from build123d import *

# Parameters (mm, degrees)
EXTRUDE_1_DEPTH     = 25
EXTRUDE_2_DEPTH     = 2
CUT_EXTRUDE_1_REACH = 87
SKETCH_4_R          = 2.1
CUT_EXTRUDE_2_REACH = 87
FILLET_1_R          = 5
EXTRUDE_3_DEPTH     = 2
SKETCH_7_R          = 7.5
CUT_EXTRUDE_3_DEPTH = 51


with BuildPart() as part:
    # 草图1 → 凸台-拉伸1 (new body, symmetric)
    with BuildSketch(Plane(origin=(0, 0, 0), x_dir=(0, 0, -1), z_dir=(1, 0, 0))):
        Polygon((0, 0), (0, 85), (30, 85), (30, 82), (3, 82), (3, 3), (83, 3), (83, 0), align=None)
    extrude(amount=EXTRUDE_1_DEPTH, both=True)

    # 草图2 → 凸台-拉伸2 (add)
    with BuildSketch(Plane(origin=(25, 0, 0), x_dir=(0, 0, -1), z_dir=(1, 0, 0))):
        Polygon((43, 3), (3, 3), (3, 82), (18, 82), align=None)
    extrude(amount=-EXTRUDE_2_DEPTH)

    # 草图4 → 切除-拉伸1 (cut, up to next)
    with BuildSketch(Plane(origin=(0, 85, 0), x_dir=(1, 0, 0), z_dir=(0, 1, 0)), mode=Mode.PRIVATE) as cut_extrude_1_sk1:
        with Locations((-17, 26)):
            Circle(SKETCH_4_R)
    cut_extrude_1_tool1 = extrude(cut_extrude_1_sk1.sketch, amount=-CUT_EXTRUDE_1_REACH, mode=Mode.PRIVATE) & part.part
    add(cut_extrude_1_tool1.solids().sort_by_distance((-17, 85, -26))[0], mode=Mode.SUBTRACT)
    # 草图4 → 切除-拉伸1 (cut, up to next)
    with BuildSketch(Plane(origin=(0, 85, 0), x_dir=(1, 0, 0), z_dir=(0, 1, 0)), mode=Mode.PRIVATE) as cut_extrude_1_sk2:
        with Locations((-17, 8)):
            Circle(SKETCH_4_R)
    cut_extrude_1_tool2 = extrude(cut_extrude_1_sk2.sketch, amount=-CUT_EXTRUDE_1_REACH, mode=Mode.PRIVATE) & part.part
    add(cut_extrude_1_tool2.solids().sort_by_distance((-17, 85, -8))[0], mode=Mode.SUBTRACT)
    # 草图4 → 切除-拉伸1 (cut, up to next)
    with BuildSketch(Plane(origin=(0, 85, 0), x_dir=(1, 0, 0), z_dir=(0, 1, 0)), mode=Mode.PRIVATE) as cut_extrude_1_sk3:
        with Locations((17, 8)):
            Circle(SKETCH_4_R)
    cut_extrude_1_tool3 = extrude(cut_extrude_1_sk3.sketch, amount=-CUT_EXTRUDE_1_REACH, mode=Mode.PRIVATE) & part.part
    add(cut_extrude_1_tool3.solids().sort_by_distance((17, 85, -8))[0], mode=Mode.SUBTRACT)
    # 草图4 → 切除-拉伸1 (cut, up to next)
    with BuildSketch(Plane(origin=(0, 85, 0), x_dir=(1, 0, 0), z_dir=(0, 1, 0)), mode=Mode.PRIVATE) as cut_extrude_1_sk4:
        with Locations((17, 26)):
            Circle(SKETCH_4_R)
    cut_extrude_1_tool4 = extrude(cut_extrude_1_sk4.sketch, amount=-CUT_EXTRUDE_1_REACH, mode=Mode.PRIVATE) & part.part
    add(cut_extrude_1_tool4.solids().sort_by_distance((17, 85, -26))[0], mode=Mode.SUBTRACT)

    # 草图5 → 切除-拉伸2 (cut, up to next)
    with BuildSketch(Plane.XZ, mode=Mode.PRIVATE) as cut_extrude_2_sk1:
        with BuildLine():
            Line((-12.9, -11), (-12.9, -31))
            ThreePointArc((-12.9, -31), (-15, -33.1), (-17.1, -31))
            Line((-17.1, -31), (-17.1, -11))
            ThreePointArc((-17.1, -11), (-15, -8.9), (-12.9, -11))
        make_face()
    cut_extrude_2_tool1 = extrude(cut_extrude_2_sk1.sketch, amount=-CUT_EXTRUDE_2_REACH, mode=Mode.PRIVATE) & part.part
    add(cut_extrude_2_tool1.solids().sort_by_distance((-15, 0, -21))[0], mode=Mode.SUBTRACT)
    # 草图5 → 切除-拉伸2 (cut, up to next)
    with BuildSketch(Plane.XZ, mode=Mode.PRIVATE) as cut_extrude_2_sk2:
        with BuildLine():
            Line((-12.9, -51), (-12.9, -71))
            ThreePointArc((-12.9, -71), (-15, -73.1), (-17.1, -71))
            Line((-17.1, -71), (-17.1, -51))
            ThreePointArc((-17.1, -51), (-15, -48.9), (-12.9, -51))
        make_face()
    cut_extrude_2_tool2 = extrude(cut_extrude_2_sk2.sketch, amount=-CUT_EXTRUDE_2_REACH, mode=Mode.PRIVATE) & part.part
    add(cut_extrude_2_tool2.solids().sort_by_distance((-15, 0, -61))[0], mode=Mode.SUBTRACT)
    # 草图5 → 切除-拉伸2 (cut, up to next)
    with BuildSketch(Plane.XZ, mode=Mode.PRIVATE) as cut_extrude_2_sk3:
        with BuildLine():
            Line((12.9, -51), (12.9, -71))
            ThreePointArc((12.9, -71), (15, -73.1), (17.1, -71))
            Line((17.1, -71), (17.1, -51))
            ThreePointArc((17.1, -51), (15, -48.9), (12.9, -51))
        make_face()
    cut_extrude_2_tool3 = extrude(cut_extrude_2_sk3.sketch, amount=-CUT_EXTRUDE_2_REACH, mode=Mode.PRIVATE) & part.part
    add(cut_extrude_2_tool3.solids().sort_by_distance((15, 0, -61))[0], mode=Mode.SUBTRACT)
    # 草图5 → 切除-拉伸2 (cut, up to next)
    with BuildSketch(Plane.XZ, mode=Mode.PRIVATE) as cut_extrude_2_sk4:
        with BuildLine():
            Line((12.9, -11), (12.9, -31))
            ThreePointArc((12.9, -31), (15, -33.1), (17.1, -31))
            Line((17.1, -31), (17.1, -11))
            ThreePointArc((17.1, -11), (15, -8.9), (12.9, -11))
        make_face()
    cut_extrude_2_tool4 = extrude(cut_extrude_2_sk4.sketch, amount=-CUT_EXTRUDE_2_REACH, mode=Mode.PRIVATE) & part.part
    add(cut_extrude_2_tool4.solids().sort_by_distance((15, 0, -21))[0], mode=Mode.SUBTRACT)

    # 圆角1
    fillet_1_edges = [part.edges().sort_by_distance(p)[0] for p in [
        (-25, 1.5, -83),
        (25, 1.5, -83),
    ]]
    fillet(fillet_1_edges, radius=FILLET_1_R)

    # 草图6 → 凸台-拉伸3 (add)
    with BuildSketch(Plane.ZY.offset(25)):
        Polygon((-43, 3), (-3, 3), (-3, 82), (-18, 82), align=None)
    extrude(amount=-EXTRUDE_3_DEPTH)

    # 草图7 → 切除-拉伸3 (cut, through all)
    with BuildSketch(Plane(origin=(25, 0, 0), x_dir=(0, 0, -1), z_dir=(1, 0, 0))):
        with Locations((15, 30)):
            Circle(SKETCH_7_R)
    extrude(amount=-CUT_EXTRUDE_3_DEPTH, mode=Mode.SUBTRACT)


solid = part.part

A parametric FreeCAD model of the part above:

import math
import FreeCAD as App
import Part
import Sketcher
from FreeCAD import Vector
Q = App.Units.Quantity


def edges_at(feature, points):
    """Names of the edges that pass closest to the given points."""
    edges = feature.Shape.Edges
    near = lambda p: min(range(len(edges)), key=lambda i: edges[i].distToShape(Part.Vertex(*p))[0])
    return sorted({f"Edge{near(p) + 1}" for p in points})


def add_polygon(sketch, points):
    """Adds a closed chain of lines whose ends are joined by coincident constraints."""
    first, n = sketch.GeometryCount, len(points)
    for a, b in zip(points, points[1:] + points[:1]):
        sketch.addGeometry(Part.LineSegment(App.Vector(*a, 0), App.Vector(*b, 0)), False)
    for i in range(n):
        sketch.addConstraint(Sketcher.Constraint("Coincident", first + i, 2, first + (i + 1) % n, 1))

doc = App.newDocument("Part")
body = doc.addObject("PartDesign::Body", "Body")

# Sketch on YZ plane
sketch1 = body.newObject("Sketcher::SketchObject", "Sketch")
sketch1.AttachmentSupport = (doc.getObject("YZ_Plane"), [""])
sketch1.MapMode = "FlatFace"
add_polygon(sketch1, [(85, 0), (0, 0), (0, -83), (3, -83), (3, -3), (82, -3), (82, -30), (85, -30)])  # lines 0-7
sketch1.addConstraint([
    Sketcher.Constraint("Horizontal", 0),
    Sketcher.Constraint("Vertical", 1),
    Sketcher.Constraint("Horizontal", 2),
    Sketcher.Constraint("Vertical", 3),
    Sketcher.Constraint("Horizontal", 4),
    Sketcher.Constraint("Vertical", 5),
    Sketcher.Constraint("Horizontal", 6),
    Sketcher.Constraint("Vertical", 7),
    Sketcher.Constraint("Coincident", 0, 2, -1, 1),
    Sketcher.Constraint("Equal", 2, 6),
    Sketcher.Constraint("DistanceX", 0, 2, 0, 1, Q("85 mm")),
    Sketcher.Constraint("DistanceX", 2, 1, 2, 2, Q("3 mm")),
    Sketcher.Constraint("DistanceY", 1, 2, 1, 1, Q("83 mm")),
    Sketcher.Constraint("DistanceY", 3, 1, 3, 2, Q("80 mm")),
    Sketcher.Constraint("DistanceY", 5, 2, 5, 1, Q("27 mm")),
])
pad1 = body.newObject("PartDesign::Pad", "Pad")
pad1.Profile = sketch1
pad1.Length = 50
pad1.Midplane = True

# Sketch on YZ plane
sketch2 = body.newObject("Sketcher::SketchObject", "Sketch001")
sketch2.AttachmentSupport = (doc.getObject("YZ_Plane"), [""])
sketch2.MapMode = "FlatFace"
sketch2.AttachmentOffset = App.Placement(Vector(0, 0, 25), App.Rotation())
add_polygon(sketch2, [(3, -3), (3, -43), (82, -18), (82, -3)])  # lines 0-3
sketch2.addConstraint([
    Sketcher.Constraint("Vertical", 0),
    Sketcher.Constraint("Vertical", 2),
    Sketcher.Constraint("Horizontal", 3),
    Sketcher.Constraint("DistanceX", 3, 2, 3, 1, Q("79 mm")),
    Sketcher.Constraint("DistanceY", 0, 2, 0, 1, Q("40 mm")),
    Sketcher.Constraint("DistanceY", 2, 1, 2, 2, Q("15 mm")),
    Sketcher.Constraint("DistanceX", -1, 1, 0, 2, Q("3 mm")),
    Sketcher.Constraint("DistanceY", 0, 2, -1, 1, Q("43 mm")),
])
pad2 = body.newObject("PartDesign::Pad", "Pad001")
pad2.Profile = sketch2
pad2.Length = 2
pad2.Reversed = True

# Sketch on XZ plane
sketch3 = body.newObject("Sketcher::SketchObject", "Sketch002")
sketch3.AttachmentSupport = (doc.getObject("XZ_Plane"), [""])
sketch3.MapMode = "FlatFace"
sketch3.AttachmentOffset = App.Placement(Vector(0, 0, -85), App.Rotation())
sketch3.addGeometry(Part.Circle(Vector(-17, -26, 0), Vector(0, 0, 1), 2.1), False)
sketch3.addConstraint([
    Sketcher.Constraint("Diameter", 0, Q("4.2 mm")),
    Sketcher.Constraint("DistanceX", 0, 3, -1, 1, Q("17 mm")),
    Sketcher.Constraint("DistanceY", 0, 3, -1, 1, Q("26 mm")),
])
pocket1 = body.newObject("PartDesign::Pocket", "Pocket")
pocket1.Profile = sketch3
pocket1.Type = "UpToFirst"
pocket1.Reversed = True

# Sketch on XZ plane
sketch4 = body.newObject("Sketcher::SketchObject", "Sketch003")
sketch4.AttachmentSupport = (doc.getObject("XZ_Plane"), [""])
sketch4.MapMode = "FlatFace"
sketch4.AttachmentOffset = App.Placement(Vector(0, 0, -85), App.Rotation())
sketch4.addGeometry(Part.Circle(Vector(-17, -8, 0), Vector(0, 0, 1), 2.1), False)
sketch4.addConstraint([
    Sketcher.Constraint("Diameter", 0, Q("4.2 mm")),
    Sketcher.Constraint("DistanceX", 0, 3, -1, 1, Q("17 mm")),
    Sketcher.Constraint("DistanceY", 0, 3, -1, 1, Q("8 mm")),
])
pocket2 = body.newObject("PartDesign::Pocket", "Pocket001")
pocket2.Profile = sketch4
pocket2.Type = "UpToFirst"
pocket2.Reversed = True

# Sketch on XZ plane
sketch5 = body.newObject("Sketcher::SketchObject", "Sketch004")
sketch5.AttachmentSupport = (doc.getObject("XZ_Plane"), [""])
sketch5.MapMode = "FlatFace"
sketch5.AttachmentOffset = App.Placement(Vector(0, 0, -85), App.Rotation())
sketch5.addGeometry(Part.Circle(Vector(17, -8, 0), Vector(0, 0, 1), 2.1), False)
sketch5.addConstraint([
    Sketcher.Constraint("Diameter", 0, Q("4.2 mm")),
    Sketcher.Constraint("DistanceX", -1, 1, 0, 3, Q("17 mm")),
    Sketcher.Constraint("DistanceY", 0, 3, -1, 1, Q("8 mm")),
])
pocket3 = body.newObject("PartDesign::Pocket", "Pocket002")
pocket3.Profile = sketch5
pocket3.Type = "UpToFirst"
pocket3.Reversed = True

# Sketch on XZ plane
sketch6 = body.newObject("Sketcher::SketchObject", "Sketch005")
sketch6.AttachmentSupport = (doc.getObject("XZ_Plane"), [""])
sketch6.MapMode = "FlatFace"
sketch6.AttachmentOffset = App.Placement(Vector(0, 0, -85), App.Rotation())
sketch6.addGeometry(Part.Circle(Vector(17, -26, 0), Vector(0, 0, 1), 2.1), False)
sketch6.addConstraint([
    Sketcher.Constraint("Diameter", 0, Q("4.2 mm")),
    Sketcher.Constraint("DistanceX", -1, 1, 0, 3, Q("17 mm")),
    Sketcher.Constraint("DistanceY", 0, 3, -1, 1, Q("26 mm")),
])
pocket4 = body.newObject("PartDesign::Pocket", "Pocket003")
pocket4.Profile = sketch6
pocket4.Type = "UpToFirst"
pocket4.Reversed = True

# Sketch on XZ plane
sketch7 = body.newObject("Sketcher::SketchObject", "Sketch006")
sketch7.AttachmentSupport = (doc.getObject("XZ_Plane"), [""])
sketch7.MapMode = "FlatFace"
sketch7.addGeometry([
    Part.LineSegment(Vector(-12.9, -31, 0), Vector(-12.9, -11, 0)),
    Part.ArcOfCircle(Part.Circle(Vector(-15, -11, 0), Vector(0, 0, 1), 2.1), math.radians(0), math.radians(180)),
    Part.LineSegment(Vector(-17.1, -11, 0), Vector(-17.1, -31, 0)),
    Part.ArcOfCircle(Part.Circle(Vector(-15, -31, 0), Vector(0, 0, 1), 2.1), math.radians(180), math.radians(360)),
], False)
sketch7.addConstraint([
    Sketcher.Constraint("Tangent", 0, 2, 1, 1),
    Sketcher.Constraint("Tangent", 1, 2, 2, 1),
    Sketcher.Constraint("Tangent", 2, 2, 3, 1),
    Sketcher.Constraint("Tangent", 3, 2, 0, 1),
    Sketcher.Constraint("Vertical", 0),
    Sketcher.Constraint("Vertical", 2),
    Sketcher.Constraint("Radius", 1, Q("2.1 mm")),
    Sketcher.Constraint("DistanceY", 0, 1, 0, 2, Q("20 mm")),
    Sketcher.Constraint("DistanceX", 1, 3, -1, 1, Q("15 mm")),
    Sketcher.Constraint("DistanceY", 1, 3, -1, 1, Q("11 mm")),
])
pocket5 = body.newObject("PartDesign::Pocket", "Pocket004")
pocket5.Profile = sketch7
pocket5.Type = "UpToFirst"

# Sketch on XZ plane
sketch8 = body.newObject("Sketcher::SketchObject", "Sketch007")
sketch8.AttachmentSupport = (doc.getObject("XZ_Plane"), [""])
sketch8.MapMode = "FlatFace"
sketch8.addGeometry([
    Part.LineSegment(Vector(-12.9, -71, 0), Vector(-12.9, -51, 0)),
    Part.ArcOfCircle(Part.Circle(Vector(-15, -51, 0), Vector(0, 0, 1), 2.1), math.radians(0), math.radians(180)),
    Part.LineSegment(Vector(-17.1, -51, 0), Vector(-17.1, -71, 0)),
    Part.ArcOfCircle(Part.Circle(Vector(-15, -71, 0), Vector(0, 0, 1), 2.1), math.radians(180), math.radians(360)),
], False)
sketch8.addConstraint([
    Sketcher.Constraint("Tangent", 0, 2, 1, 1),
    Sketcher.Constraint("Tangent", 1, 2, 2, 1),
    Sketcher.Constraint("Tangent", 2, 2, 3, 1),
    Sketcher.Constraint("Tangent", 3, 2, 0, 1),
    Sketcher.Constraint("Vertical", 0),
    Sketcher.Constraint("Vertical", 2),
    Sketcher.Constraint("Radius", 1, Q("2.1 mm")),
    Sketcher.Constraint("DistanceY", 0, 1, 0, 2, Q("20 mm")),
    Sketcher.Constraint("DistanceX", 1, 3, -1, 1, Q("15 mm")),
    Sketcher.Constraint("DistanceY", 1, 3, -1, 1, Q("51 mm")),
])
pocket6 = body.newObject("PartDesign::Pocket", "Pocket005")
pocket6.Profile = sketch8
pocket6.Type = "UpToFirst"

# Sketch on XZ plane
sketch9 = body.newObject("Sketcher::SketchObject", "Sketch008")
sketch9.AttachmentSupport = (doc.getObject("XZ_Plane"), [""])
sketch9.MapMode = "FlatFace"
sketch9.addGeometry([
    Part.LineSegment(Vector(12.9, -51, 0), Vector(12.9, -71, 0)),
    Part.ArcOfCircle(Part.Circle(Vector(15, -71, 0), Vector(0, 0, 1), 2.1), math.radians(180), math.radians(360)),
    Part.LineSegment(Vector(17.1, -71, 0), Vector(17.1, -51, 0)),
    Part.ArcOfCircle(Part.Circle(Vector(15, -51, 0), Vector(0, 0, 1), 2.1), math.radians(0), math.radians(180)),
], False)
sketch9.addConstraint([
    Sketcher.Constraint("Tangent", 0, 2, 1, 1),
    Sketcher.Constraint("Tangent", 1, 2, 2, 1),
    Sketcher.Constraint("Tangent", 2, 2, 3, 1),
    Sketcher.Constraint("Tangent", 3, 2, 0, 1),
    Sketcher.Constraint("Vertical", 0),
    Sketcher.Constraint("Vertical", 2),
    Sketcher.Constraint("Radius", 1, Q("2.1 mm")),
    Sketcher.Constraint("DistanceY", 0, 2, 0, 1, Q("20 mm")),
    Sketcher.Constraint("DistanceX", -1, 1, 1, 3, Q("15 mm")),
    Sketcher.Constraint("DistanceY", 1, 3, -1, 1, Q("71 mm")),
])
pocket7 = body.newObject("PartDesign::Pocket", "Pocket006")
pocket7.Profile = sketch9
pocket7.Type = "UpToFirst"

# Sketch on XZ plane
sketch10 = body.newObject("Sketcher::SketchObject", "Sketch009")
sketch10.AttachmentSupport = (doc.getObject("XZ_Plane"), [""])
sketch10.MapMode = "FlatFace"
sketch10.addGeometry([
    Part.LineSegment(Vector(12.9, -11, 0), Vector(12.9, -31, 0)),
    Part.ArcOfCircle(Part.Circle(Vector(15, -31, 0), Vector(0, 0, 1), 2.1), math.radians(180), math.radians(360)),
    Part.LineSegment(Vector(17.1, -31, 0), Vector(17.1, -11, 0)),
    Part.ArcOfCircle(Part.Circle(Vector(15, -11, 0), Vector(0, 0, 1), 2.1), math.radians(0), math.radians(180)),
], False)
sketch10.addConstraint([
    Sketcher.Constraint("Tangent", 0, 2, 1, 1),
    Sketcher.Constraint("Tangent", 1, 2, 2, 1),
    Sketcher.Constraint("Tangent", 2, 2, 3, 1),
    Sketcher.Constraint("Tangent", 3, 2, 0, 1),
    Sketcher.Constraint("Vertical", 0),
    Sketcher.Constraint("Vertical", 2),
    Sketcher.Constraint("Radius", 1, Q("2.1 mm")),
    Sketcher.Constraint("DistanceY", 0, 2, 0, 1, Q("20 mm")),
    Sketcher.Constraint("DistanceX", -1, 1, 1, 3, Q("15 mm")),
    Sketcher.Constraint("DistanceY", 1, 3, -1, 1, Q("31 mm")),
])
pocket8 = body.newObject("PartDesign::Pocket", "Pocket007")
pocket8.Profile = sketch10
pocket8.Type = "UpToFirst"
doc.recompute()

fillet = body.newObject("PartDesign::Fillet", "Fillet")
fillet.Base = (pocket8, edges_at(pocket8, [(-25, 1.5, -83), (25, 1.5, -83)]))
fillet.Radius = 5

# Sketch on YZ plane
sketch11 = body.newObject("Sketcher::SketchObject", "Sketch010")
sketch11.AttachmentSupport = (doc.getObject("YZ_Plane"), [""])
sketch11.MapMode = "FlatFace"
sketch11.AttachmentOffset = App.Placement(Vector(0, 0, -25), App.Rotation())
add_polygon(sketch11, [(3, -43), (3, -3), (82, -3), (82, -18)])  # lines 0-3
sketch11.addConstraint([
    Sketcher.Constraint("Vertical", 0),
    Sketcher.Constraint("Horizontal", 1),
    Sketcher.Constraint("Vertical", 2),
    Sketcher.Constraint("DistanceX", 1, 1, 1, 2, Q("79 mm")),
    Sketcher.Constraint("DistanceY", 0, 1, 0, 2, Q("40 mm")),
    Sketcher.Constraint("DistanceY", 2, 2, 2, 1, Q("15 mm")),
    Sketcher.Constraint("DistanceX", -1, 1, 0, 2, Q("3 mm")),
    Sketcher.Constraint("DistanceY", 0, 2, -1, 1, Q("3 mm")),
])
pad3 = body.newObject("PartDesign::Pad", "Pad002")
pad3.Profile = sketch11
pad3.Length = 2

# Sketch on YZ plane
sketch12 = body.newObject("Sketcher::SketchObject", "Sketch011")
sketch12.AttachmentSupport = (doc.getObject("YZ_Plane"), [""])
sketch12.MapMode = "FlatFace"
sketch12.AttachmentOffset = App.Placement(Vector(0, 0, 25), App.Rotation())
sketch12.addGeometry(Part.Circle(Vector(30, -15, 0), Vector(0, 0, 1), 8), False)
sketch12.addConstraint([
    Sketcher.Constraint("Diameter", 0, Q("15 mm")),
    Sketcher.Constraint("DistanceX", -1, 1, 0, 3, Q("30 mm")),
    Sketcher.Constraint("DistanceY", 0, 3, -1, 1, Q("15 mm")),
])
pocket9 = body.newObject("PartDesign::Pocket", "Pocket008")
pocket9.Profile = sketch12
pocket9.Type = "ThroughAll"

doc.recompute()
